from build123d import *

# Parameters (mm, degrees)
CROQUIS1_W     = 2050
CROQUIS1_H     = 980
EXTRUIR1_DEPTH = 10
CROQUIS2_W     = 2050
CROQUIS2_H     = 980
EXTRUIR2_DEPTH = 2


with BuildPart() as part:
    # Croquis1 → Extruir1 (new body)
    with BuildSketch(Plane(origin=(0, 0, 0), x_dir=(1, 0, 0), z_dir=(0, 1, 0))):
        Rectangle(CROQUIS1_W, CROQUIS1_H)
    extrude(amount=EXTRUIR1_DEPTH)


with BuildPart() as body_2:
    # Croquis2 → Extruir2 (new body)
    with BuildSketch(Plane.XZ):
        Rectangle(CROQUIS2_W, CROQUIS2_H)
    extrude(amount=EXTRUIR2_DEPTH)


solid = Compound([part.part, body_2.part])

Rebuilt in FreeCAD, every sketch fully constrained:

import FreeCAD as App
import Part
import Sketcher
from FreeCAD import Vector

doc = App.newDocument("Part")
body = doc.addObject("PartDesign::Body", "Body")

sketch1 = body.newObject("Sketcher::SketchObject", "Sketch")
sketch1.AttachmentSupport = (doc.getObject("XZ_Plane"), [""])
sketch1.MapMode = "FlatFace"
sketch1.addGeometry(Part.LineSegment(Vector(-1025, -490, 0), Vector(-1025, 490, 0)), False)
sketch1.addGeometry(Part.LineSegment(Vector(-1025, 490, 0), Vector(1025, 490, 0)), False)
sketch1.addGeometry(Part.LineSegment(Vector(1025, 490, 0), Vector(1025, -490, 0)), False)
sketch1.addGeometry(Part.LineSegment(Vector(1025, -490, 0), Vector(-1025, -490, 0)), False)
sketch1.addConstraint(Sketcher.Constraint("Coincident", 0, 2, 1, 1))
sketch1.addConstraint(Sketcher.Constraint("Coincident", 1, 2, 2, 1))
sketch1.addConstraint(Sketcher.Constraint("Coincident", 2, 2, 3, 1))
sketch1.addConstraint(Sketcher.Constraint("Coincident", 3, 2, 0, 1))
sketch1.addConstraint(Sketcher.Constraint("Vertical", 0))
sketch1.addConstraint(Sketcher.Constraint("Horizontal", 1))
sketch1.addConstraint(Sketcher.Constraint("Vertical", 2))
sketch1.addConstraint(Sketcher.Constraint("Horizontal", 3))
sketch1.addConstraint(Sketcher.Constraint("Symmetric", 0, 2, 2, 2, -1, 1))
sketch1.addConstraint(Sketcher.Constraint("DistanceX", 1, 1, 1, 2, 2050.0))
sketch1.addConstraint(Sketcher.Constraint("DistanceY", 0, 1, 0, 2, 980.0))
pad1 = body.newObject("PartDesign::Pad", "Pad")
pad1.Profile = sketch1
pad1.Length = 10
pad1.Reversed = True
body2 = doc.addObject("PartDesign::Body", "Body001")

sketch2 = body2.newObject("Sketcher::SketchObject", "Sketch001")
sketch2.AttachmentSupport = (doc.getObject("XZ_Plane001"), [""])
sketch2.MapMode = "FlatFace"
sketch2.addGeometry(Part.LineSegment(Vector(-1025, 490, 0), Vector(-1025, -490, 0)), False)
sketch2.addGeometry(Part.LineSegment(Vector(-1025, -490, 0), Vector(1025, -490, 0)), False)
sketch2.addGeometry(Part.LineSegment(Vector(1025, -490, 0), Vector(1025, 490, 0)), False)
sketch2.addGeometry(Part.LineSegment(Vector(1025, 490, 0), Vector(-1025, 490, 0)), False)
sketch2.addConstraint(Sketcher.Constraint("Coincident", 0, 2, 1, 1))
sketch2.addConstraint(Sketcher.Constraint("Coincident", 1, 2, 2, 1))
sketch2.addConstraint(Sketcher.Constraint("Coincident", 2, 2, 3, 1))
sketch2.addConstraint(Sketcher.Constraint("Coincident", 3, 2, 0, 1))
sketch2.addConstraint(Sketcher.Constraint("Vertical", 0))
sketch2.addConstraint(Sketcher.Constraint("Horizontal", 1))
sketch2.addConstraint(Sketcher.Constraint("Vertical", 2))
sketch2.addConstraint(Sketcher.Constraint("Horizontal", 3))
sketch2.addConstraint(Sketcher.Constraint("Symmetric", 0, 2, 2, 2, -1, 1))
sketch2.addConstraint(Sketcher.Constraint("DistanceX", 1, 1, 1, 2, 2050.0))
sketch2.addConstraint(Sketcher.Constraint("DistanceY", 0, 2, 0, 1, 980.0))
pad2 = body2.newObject("PartDesign::Pad", "Pad001")
pad2.Profile = sketch2
pad2.Length = 2

doc.recompute()
